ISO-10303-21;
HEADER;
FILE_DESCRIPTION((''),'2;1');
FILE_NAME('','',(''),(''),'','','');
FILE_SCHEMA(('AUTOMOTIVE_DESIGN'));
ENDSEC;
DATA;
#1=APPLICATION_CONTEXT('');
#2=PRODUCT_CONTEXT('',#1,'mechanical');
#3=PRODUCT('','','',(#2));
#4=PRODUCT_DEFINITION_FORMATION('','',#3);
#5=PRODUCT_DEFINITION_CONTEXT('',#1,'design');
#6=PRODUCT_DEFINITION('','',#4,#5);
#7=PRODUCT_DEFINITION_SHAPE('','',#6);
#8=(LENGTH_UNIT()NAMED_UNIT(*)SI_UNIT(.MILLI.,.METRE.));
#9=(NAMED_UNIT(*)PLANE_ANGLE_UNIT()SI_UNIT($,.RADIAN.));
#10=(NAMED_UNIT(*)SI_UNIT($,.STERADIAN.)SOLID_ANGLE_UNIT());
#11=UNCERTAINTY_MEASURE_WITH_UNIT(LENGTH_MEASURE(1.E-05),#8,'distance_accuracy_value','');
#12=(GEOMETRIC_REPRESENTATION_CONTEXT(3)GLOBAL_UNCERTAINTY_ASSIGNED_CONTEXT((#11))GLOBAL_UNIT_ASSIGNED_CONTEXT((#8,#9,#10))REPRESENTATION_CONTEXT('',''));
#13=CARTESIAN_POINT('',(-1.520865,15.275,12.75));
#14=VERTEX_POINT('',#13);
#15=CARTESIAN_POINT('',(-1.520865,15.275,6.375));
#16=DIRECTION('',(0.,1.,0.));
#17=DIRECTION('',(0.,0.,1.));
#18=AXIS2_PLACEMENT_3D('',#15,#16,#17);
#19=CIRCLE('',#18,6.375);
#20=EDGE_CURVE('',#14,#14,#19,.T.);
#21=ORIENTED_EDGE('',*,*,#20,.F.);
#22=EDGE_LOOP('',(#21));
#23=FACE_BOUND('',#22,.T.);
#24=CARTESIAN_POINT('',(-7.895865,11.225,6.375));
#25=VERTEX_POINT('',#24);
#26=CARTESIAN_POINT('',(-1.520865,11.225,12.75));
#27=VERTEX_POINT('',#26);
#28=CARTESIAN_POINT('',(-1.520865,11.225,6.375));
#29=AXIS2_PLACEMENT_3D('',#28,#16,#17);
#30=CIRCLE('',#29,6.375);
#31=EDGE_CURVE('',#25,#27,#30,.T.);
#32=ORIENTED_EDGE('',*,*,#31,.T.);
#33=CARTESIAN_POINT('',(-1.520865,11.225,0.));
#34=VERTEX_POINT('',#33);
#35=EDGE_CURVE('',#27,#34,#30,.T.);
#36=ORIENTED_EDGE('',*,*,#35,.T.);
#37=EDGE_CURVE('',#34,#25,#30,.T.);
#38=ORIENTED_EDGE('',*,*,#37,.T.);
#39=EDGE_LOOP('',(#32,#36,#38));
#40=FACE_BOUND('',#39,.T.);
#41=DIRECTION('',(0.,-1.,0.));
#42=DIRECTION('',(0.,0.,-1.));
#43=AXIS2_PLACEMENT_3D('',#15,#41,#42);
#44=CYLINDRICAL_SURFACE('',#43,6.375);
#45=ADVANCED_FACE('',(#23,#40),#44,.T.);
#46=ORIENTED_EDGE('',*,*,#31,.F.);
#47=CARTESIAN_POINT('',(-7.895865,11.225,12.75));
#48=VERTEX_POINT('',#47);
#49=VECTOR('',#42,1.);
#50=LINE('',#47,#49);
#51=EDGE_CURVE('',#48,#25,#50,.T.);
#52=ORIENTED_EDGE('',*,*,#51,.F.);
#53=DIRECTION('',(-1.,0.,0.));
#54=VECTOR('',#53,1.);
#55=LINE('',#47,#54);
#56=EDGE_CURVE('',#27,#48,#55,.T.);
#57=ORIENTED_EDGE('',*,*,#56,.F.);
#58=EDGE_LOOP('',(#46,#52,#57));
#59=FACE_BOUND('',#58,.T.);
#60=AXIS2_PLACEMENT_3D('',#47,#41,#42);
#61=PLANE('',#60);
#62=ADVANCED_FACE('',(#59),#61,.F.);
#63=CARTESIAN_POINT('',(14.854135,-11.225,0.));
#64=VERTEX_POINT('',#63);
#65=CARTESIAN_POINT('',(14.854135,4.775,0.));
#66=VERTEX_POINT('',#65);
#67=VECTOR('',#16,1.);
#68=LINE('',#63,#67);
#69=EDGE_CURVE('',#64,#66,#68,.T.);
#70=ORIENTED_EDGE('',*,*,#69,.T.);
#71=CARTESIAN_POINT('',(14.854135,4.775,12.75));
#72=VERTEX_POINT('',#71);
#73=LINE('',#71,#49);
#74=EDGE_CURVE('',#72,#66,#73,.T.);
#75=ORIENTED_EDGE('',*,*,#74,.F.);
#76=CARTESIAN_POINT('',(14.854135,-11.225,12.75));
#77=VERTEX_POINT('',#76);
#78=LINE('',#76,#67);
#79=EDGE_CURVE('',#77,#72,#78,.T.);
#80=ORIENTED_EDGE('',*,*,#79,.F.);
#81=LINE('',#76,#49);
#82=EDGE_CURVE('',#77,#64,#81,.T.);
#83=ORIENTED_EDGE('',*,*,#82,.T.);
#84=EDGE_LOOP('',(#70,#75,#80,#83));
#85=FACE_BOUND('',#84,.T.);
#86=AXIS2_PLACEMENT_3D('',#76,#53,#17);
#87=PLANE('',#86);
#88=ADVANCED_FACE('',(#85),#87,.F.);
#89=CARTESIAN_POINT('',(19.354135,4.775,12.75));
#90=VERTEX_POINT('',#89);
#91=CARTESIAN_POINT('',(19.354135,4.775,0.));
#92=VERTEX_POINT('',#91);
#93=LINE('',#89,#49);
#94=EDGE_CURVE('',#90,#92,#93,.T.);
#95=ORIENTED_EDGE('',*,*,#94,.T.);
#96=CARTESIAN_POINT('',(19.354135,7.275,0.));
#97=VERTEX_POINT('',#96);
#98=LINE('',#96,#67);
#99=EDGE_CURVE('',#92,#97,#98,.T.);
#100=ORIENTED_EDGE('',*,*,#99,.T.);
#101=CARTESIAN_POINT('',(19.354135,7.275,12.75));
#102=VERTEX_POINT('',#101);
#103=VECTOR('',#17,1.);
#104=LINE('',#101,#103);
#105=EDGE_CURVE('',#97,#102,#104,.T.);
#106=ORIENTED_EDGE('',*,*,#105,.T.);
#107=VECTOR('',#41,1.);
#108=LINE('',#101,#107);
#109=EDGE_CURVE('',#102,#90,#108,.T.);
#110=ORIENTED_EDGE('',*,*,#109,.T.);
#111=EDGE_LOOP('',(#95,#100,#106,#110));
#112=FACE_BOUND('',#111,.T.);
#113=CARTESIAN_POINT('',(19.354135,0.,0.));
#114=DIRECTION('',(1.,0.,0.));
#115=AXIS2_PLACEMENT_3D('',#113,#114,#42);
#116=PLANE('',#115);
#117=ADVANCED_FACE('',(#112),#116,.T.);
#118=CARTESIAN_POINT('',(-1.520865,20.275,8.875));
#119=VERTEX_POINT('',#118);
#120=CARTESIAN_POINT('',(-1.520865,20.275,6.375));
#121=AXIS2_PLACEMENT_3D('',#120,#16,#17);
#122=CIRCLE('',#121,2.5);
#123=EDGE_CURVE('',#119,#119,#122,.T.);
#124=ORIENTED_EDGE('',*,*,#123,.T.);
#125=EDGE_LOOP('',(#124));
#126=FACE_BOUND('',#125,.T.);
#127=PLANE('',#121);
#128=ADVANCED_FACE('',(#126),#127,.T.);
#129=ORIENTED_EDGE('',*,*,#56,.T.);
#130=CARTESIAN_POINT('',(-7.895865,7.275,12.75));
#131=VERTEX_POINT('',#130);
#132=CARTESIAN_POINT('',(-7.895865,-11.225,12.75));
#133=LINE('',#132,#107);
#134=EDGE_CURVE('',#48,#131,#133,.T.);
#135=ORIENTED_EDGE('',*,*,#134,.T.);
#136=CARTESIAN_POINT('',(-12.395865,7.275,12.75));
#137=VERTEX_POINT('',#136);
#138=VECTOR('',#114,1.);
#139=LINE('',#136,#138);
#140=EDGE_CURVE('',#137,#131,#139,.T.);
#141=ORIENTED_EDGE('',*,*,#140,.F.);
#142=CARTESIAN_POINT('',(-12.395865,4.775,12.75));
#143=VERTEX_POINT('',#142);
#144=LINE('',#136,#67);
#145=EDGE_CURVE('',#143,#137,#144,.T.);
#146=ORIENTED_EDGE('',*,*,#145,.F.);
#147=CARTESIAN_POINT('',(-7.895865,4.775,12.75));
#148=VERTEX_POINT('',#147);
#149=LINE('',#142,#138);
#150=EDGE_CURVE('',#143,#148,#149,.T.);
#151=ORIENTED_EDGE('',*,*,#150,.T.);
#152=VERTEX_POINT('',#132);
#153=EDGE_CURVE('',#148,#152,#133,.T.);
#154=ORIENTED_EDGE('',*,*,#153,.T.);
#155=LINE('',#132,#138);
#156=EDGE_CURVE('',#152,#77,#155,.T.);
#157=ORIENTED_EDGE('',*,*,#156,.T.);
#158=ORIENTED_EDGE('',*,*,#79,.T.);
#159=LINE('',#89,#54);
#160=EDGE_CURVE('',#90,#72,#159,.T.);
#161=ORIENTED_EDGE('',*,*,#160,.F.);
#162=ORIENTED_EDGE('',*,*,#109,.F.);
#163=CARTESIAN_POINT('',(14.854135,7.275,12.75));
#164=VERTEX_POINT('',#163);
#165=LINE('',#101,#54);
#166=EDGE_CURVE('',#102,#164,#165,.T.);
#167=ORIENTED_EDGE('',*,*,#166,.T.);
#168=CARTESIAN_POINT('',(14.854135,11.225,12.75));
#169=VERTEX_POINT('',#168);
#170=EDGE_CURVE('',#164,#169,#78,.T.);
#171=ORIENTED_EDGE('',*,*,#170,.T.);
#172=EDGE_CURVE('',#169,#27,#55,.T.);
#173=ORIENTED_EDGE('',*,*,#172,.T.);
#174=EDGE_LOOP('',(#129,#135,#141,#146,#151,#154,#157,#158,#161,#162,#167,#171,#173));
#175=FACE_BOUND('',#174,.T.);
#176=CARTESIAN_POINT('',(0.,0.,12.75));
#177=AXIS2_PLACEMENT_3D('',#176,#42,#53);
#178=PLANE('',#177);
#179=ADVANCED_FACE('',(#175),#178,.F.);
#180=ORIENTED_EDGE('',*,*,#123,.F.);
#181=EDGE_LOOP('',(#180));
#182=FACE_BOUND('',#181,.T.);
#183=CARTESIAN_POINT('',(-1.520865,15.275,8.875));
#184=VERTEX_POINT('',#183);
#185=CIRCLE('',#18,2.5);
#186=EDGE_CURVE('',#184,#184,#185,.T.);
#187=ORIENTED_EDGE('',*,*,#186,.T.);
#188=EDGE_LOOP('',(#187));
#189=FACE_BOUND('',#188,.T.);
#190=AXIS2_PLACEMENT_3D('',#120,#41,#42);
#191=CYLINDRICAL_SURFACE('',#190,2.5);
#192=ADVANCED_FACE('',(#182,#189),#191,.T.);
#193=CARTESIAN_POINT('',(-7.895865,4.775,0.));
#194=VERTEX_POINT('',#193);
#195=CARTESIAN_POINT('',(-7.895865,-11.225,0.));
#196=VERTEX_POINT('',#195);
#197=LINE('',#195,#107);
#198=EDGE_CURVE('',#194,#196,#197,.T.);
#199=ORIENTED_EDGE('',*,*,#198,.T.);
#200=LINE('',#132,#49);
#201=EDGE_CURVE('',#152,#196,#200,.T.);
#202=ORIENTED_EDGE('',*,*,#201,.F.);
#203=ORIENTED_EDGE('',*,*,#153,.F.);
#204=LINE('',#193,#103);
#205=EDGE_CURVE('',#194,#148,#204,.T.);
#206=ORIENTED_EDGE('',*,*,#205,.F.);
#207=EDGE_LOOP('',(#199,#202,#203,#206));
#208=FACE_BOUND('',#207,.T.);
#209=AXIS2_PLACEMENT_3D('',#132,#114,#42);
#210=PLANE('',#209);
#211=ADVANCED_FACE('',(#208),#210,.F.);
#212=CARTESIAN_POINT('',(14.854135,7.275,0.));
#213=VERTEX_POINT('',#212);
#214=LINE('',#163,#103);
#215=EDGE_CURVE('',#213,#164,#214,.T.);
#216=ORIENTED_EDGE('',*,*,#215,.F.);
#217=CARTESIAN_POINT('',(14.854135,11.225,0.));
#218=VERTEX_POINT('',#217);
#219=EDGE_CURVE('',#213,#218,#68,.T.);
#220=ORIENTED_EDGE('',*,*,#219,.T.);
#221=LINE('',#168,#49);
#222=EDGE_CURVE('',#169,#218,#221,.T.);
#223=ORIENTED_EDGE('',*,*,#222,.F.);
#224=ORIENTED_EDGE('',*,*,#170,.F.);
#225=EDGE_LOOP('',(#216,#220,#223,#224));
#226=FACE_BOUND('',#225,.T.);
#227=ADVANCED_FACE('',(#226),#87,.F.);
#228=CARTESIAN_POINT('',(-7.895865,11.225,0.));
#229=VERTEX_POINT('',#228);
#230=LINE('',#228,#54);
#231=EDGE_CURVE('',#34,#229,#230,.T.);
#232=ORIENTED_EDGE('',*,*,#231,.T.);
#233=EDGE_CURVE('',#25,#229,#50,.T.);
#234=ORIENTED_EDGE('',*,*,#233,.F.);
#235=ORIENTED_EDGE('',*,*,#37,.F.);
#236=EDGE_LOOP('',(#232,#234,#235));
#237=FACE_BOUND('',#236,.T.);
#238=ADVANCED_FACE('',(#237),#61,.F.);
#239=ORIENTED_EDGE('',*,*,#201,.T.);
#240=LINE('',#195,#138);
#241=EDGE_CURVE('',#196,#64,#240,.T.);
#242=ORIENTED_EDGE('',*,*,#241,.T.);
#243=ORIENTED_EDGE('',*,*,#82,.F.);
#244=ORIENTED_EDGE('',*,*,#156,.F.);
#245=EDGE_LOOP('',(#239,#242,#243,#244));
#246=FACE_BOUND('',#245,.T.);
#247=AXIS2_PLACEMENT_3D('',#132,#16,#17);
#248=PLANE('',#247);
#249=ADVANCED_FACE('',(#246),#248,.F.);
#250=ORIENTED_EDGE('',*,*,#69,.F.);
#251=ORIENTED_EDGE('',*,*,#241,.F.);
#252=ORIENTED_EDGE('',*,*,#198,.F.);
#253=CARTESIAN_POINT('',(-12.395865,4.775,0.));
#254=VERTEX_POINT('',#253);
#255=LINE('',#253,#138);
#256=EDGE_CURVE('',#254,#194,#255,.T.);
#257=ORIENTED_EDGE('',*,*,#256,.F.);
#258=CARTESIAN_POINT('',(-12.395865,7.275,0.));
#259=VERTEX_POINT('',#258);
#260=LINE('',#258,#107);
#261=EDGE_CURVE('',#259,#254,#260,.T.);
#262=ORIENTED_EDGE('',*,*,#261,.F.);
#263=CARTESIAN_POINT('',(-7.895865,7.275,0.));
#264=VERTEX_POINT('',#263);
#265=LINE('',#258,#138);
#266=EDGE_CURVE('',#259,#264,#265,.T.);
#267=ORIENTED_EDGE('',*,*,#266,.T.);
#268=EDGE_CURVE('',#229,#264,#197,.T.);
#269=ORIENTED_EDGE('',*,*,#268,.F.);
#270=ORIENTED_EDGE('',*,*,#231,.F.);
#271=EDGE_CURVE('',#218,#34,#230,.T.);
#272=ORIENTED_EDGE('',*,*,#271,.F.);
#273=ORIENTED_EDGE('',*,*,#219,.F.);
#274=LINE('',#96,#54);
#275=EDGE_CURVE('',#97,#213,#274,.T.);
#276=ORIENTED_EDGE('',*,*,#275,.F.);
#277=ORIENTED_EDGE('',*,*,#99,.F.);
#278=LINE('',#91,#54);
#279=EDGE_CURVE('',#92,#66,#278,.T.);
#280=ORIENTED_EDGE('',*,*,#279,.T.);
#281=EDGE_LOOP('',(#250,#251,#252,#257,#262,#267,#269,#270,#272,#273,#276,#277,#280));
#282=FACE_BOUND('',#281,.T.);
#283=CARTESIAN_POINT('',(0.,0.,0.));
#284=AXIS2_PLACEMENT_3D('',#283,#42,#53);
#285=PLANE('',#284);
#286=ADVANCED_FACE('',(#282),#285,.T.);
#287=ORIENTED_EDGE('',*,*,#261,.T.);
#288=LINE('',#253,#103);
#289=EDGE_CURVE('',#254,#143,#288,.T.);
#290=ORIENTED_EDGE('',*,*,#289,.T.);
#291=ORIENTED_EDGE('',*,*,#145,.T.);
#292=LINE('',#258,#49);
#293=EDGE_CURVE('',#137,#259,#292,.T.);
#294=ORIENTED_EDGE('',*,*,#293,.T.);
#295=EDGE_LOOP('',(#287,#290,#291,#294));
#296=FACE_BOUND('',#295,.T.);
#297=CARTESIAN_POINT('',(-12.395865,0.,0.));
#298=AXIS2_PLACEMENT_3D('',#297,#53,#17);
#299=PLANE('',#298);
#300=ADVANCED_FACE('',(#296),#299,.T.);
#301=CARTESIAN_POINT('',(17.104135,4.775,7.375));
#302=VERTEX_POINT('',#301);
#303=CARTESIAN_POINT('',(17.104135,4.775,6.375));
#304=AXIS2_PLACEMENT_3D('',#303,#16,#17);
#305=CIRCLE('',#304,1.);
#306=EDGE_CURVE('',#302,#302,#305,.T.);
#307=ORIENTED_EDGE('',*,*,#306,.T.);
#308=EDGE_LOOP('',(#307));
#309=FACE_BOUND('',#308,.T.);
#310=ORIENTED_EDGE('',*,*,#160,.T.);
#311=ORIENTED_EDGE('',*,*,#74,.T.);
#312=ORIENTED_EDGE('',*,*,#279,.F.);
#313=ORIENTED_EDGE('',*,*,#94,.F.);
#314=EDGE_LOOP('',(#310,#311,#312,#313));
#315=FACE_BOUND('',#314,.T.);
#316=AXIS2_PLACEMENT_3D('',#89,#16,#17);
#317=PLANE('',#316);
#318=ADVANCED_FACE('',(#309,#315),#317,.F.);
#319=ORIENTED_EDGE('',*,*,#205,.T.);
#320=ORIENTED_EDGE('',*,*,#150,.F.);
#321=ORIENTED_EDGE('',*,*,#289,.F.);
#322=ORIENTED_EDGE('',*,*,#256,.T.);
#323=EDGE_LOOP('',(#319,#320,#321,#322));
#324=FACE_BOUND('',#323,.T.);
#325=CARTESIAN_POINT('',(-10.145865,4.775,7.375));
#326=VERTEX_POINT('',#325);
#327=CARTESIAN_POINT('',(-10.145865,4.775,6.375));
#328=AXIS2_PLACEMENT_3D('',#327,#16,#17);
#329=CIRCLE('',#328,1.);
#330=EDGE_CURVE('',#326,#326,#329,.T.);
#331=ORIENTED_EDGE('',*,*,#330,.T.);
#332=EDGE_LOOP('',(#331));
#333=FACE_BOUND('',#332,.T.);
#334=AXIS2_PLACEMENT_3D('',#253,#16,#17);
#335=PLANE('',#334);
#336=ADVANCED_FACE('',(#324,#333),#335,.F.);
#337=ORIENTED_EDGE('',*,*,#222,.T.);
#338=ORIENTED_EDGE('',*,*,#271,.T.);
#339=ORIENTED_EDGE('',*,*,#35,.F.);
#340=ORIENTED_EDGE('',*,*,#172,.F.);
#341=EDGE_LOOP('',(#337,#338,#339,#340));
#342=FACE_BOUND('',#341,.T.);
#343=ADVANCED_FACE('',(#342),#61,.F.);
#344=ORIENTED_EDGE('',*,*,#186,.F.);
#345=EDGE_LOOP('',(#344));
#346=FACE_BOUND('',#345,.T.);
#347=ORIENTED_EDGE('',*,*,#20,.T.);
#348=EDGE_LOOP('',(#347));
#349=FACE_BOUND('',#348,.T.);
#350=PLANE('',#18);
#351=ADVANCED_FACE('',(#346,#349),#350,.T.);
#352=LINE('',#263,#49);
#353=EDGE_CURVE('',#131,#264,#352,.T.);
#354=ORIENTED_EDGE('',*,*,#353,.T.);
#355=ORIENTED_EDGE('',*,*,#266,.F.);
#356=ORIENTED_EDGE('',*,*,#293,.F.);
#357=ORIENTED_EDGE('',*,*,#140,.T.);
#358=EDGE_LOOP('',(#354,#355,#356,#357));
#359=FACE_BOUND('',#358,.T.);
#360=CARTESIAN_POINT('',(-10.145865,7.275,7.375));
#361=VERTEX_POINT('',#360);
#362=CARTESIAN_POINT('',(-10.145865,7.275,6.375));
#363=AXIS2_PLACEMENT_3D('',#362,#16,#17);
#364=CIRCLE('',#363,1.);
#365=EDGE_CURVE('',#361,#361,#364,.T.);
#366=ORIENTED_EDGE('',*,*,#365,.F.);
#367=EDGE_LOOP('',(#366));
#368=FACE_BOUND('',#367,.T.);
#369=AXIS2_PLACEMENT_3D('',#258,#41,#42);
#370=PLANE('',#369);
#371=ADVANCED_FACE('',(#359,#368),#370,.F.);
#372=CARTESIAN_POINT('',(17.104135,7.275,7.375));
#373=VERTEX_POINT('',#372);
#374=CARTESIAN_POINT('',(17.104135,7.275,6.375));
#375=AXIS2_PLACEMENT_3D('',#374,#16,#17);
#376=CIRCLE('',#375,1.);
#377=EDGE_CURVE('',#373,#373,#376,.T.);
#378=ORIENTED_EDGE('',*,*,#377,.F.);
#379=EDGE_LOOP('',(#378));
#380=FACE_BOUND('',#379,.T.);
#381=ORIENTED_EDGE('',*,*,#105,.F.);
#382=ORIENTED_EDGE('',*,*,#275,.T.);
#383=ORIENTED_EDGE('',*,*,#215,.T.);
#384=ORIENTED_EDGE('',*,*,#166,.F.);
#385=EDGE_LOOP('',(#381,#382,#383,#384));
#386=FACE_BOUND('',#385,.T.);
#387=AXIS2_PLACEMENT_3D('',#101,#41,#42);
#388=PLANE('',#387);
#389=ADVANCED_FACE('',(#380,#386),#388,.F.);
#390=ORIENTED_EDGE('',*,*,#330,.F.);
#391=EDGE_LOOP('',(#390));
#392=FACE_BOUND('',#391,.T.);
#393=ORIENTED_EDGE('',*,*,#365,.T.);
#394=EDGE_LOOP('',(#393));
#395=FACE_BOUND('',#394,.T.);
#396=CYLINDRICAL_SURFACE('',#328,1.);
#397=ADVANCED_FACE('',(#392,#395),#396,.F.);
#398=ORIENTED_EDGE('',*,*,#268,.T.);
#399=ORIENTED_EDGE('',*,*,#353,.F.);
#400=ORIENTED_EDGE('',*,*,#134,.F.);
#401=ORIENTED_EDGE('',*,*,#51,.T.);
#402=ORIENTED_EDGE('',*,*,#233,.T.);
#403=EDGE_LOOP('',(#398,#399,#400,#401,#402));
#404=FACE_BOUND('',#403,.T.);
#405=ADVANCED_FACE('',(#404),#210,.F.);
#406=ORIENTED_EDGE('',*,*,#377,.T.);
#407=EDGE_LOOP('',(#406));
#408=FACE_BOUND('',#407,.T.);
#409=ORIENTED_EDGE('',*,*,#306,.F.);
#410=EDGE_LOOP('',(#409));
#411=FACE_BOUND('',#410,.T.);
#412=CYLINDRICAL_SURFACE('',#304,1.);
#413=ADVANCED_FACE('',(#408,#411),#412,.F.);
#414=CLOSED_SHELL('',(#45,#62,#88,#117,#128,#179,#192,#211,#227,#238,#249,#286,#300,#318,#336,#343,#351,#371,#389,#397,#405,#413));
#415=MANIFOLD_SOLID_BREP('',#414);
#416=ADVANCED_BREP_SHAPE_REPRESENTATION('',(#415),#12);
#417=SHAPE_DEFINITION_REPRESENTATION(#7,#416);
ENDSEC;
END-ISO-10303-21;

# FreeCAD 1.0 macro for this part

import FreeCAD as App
import Part
import Sketcher

doc = App.newDocument("Part")
body = doc.addObject("PartDesign::Body", "Body")

sketch1 = body.newObject("Sketcher::SketchObject", "Sketch")
sketch1.AttachmentSupport = (doc.getObject("XY_Plane"), [""])
sketch1.MapMode = "FlatFace"
sketch1.addGeometry([
    Part.LineSegment(App.Vector(-7.895865, 11.225, 0), App.Vector(-7.895865, -11.225, 0)),
    Part.LineSegment(App.Vector(-7.895865, -11.225, 0), App.Vector(14.854135, -11.225, 0)),
    Part.LineSegment(App.Vector(14.854135, -11.225, 0), App.Vector(14.854135, 11.225, 0)),
    Part.LineSegment(App.Vector(14.854135, 11.225, 0), App.Vector(-7.895865, 11.225, 0)),
], False)
sketch1.addConstraint([
    Sketcher.Constraint("Coincident", 0, 2, 1, 1),
    Sketcher.Constraint("Coincident", 1, 2, 2, 1),
    Sketcher.Constraint("Coincident", 2, 2, 3, 1),
    Sketcher.Constraint("Coincident", 3, 2, 0, 1),
    Sketcher.Constraint("Vertical", 0),
    Sketcher.Constraint("Horizontal", 1),
    Sketcher.Constraint("Vertical", 2),
    Sketcher.Constraint("Horizontal", 3),
    Sketcher.Constraint("DistanceX", 1, 1, 1, 2, 22.75),
    Sketcher.Constraint("DistanceY", 0, 2, 0, 1, 22.45),
    Sketcher.Constraint("DistanceY", 0, 2, -1, 1, 11.225),
    Sketcher.Constraint("DistanceX", 0, 2, -1, 1, 7.895865),
])
pad1 = body.newObject("PartDesign::Pad", "Pad")
pad1.Profile = sketch1
pad1.Length = 12.75

sketch2 = body.newObject("Sketcher::SketchObject", "Sketch001")
sketch2.AttachmentSupport = (doc.getObject("YZ_Plane"), [""])
sketch2.MapMode = "FlatFace"
sketch2.AttachmentOffset = App.Placement(App.Vector(0, 0, 14.854135), App.Rotation())
sketch2.addGeometry([
    Part.LineSegment(App.Vector(7.275, 12.75, 0), App.Vector(4.775, 12.75, 0)),
    Part.LineSegment(App.Vector(4.775, 12.75, 0), App.Vector(4.775, 0, 0)),
    Part.LineSegment(App.Vector(4.775, 0, 0), App.Vector(7.275, 0, 0)),
    Part.LineSegment(App.Vector(7.275, 0, 0), App.Vector(7.275, 12.75, 0)),
], False)
sketch2.addConstraint([
    Sketcher.Constraint("Coincident", 0, 2, 1, 1),
    Sketcher.Constraint("Coincident", 1, 2, 2, 1),
    Sketcher.Constraint("Coincident", 2, 2, 3, 1),
    Sketcher.Constraint("Coincident", 3, 2, 0, 1),
    Sketcher.Constraint("Horizontal", 0),
    Sketcher.Constraint("Vertical", 1),
    Sketcher.Constraint("Horizontal", 2),
    Sketcher.Constraint("Vertical", 3),
    Sketcher.Constraint("PointOnObject", 1, 2, -1),
    Sketcher.Constraint("DistanceX", 0, 2, 0, 1, 2.5),
    Sketcher.Constraint("DistanceY", 1, 2, 1, 1, 12.75),
    Sketcher.Constraint("DistanceX", -1, 1, 0, 2, 4.775),
])
pad2 = body.newObject("PartDesign::Pad", "Pad001")
pad2.Profile = sketch2
pad2.Length = 4.5

sketch3 = body.newObject("Sketcher::SketchObject", "Sketch002")
sketch3.AttachmentSupport = (doc.getObject("YZ_Plane"), [""])
sketch3.MapMode = "FlatFace"
sketch3.AttachmentOffset = App.Placement(App.Vector(0, 0, -7.895865), App.Rotation())
sketch3.addGeometry([
    Part.LineSegment(App.Vector(7.275, 0, 0), App.Vector(4.775, 0, 0)),
    Part.LineSegment(App.Vector(4.775, 0, 0), App.Vector(4.775, 12.75, 0)),
    Part.LineSegment(App.Vector(4.775, 12.75, 0), App.Vector(7.275, 12.75, 0)),
    Part.LineSegment(App.Vector(7.275, 12.75, 0), App.Vector(7.275, 0, 0)),
], False)
sketch3.addConstraint([
    Sketcher.Constraint("Coincident", 0, 2, 1, 1),
    Sketcher.Constraint("Coincident", 1, 2, 2, 1),
    Sketcher.Constraint("Coincident", 2, 2, 3, 1),
    Sketcher.Constraint("Coincident", 3, 2, 0, 1),
    Sketcher.Constraint("Horizontal", 0),
    Sketcher.Constraint("Vertical", 1),
    Sketcher.Constraint("Horizontal", 2),
    Sketcher.Constraint("Vertical", 3),
    Sketcher.Constraint("PointOnObject", 0, 2, -1),
    Sketcher.Constraint("DistanceX", 0, 2, 0, 1, 2.5),
    Sketcher.Constraint("DistanceY", 1, 1, 1, 2, 12.75),
    Sketcher.Constraint("DistanceX", -1, 1, 0, 2, 4.775),
])
pad3 = body.newObject("PartDesign::Pad", "Pad002")
pad3.Profile = sketch3
pad3.Length = 4.5
pad3.Reversed = True

sketch4 = body.newObject("Sketcher::SketchObject", "Sketch003")
sketch4.AttachmentSupport = (doc.getObject("XZ_Plane"), [""])
sketch4.MapMode = "FlatFace"
sketch4.AttachmentOffset = App.Placement(App.Vector(0, 0, -7.275), App.Rotation())
sketch4.addGeometry(Part.Circle(App.Vector(-10.145865, 6.375, 0), App.Vector(0, 0, 1), 1), False)
sketch4.addConstraint([
    Sketcher.Constraint("Diameter", 0, 2.0),
    Sketcher.Constraint("DistanceY", -1, 1, 0, 3, 6.375),
    Sketcher.Constraint("DistanceX", 0, 3, -1, 1, 10.145865),
])
pocket1 = body.newObject("PartDesign::Pocket", "Pocket")
pocket1.Profile = sketch4
pocket1.Length = 2.5
pocket1.Reversed = True

sketch5 = body.newObject("Sketcher::SketchObject", "Sketch004")
sketch5.AttachmentSupport = (doc.getObject("XZ_Plane"), [""])
sketch5.MapMode = "FlatFace"
sketch5.AttachmentOffset = App.Placement(App.Vector(0, 0, -7.275), App.Rotation())
sketch5.addGeometry(Part.Circle(App.Vector(17.104135, 6.375, 0), App.Vector(0, 0, 1), 1), False)
sketch5.addConstraint([
    Sketcher.Constraint("Diameter", 0, 2.0),
    Sketcher.Constraint("DistanceY", -1, 1, 0, 3, 6.375),
    Sketcher.Constraint("DistanceX", -1, 1, 0, 3, 17.104135),
])
pocket2 = body.newObject("PartDesign::Pocket", "Pocket001")
pocket2.Profile = sketch5
pocket2.Length = 2.5
pocket2.Reversed = True

sketch6 = body.newObject("Sketcher::SketchObject", "Sketch005")
sketch6.AttachmentSupport = (doc.getObject("XZ_Plane"), [""])
sketch6.MapMode = "FlatFace"
sketch6.AttachmentOffset = App.Placement(App.Vector(0, 0, -11.225), App.Rotation())
sketch6.addGeometry(Part.Circle(App.Vector(-1.520865, 6.375, 0), App.Vector(0, 0, 1), 6.375), False)
sketch6.addConstraint([
    Sketcher.Constraint("Diameter", 0, 12.75),
    Sketcher.Constraint("DistanceY", -1, 1, 0, 3, 6.375),
    Sketcher.Constraint("DistanceX", 0, 3, -1, 1, 1.520865),
])
pad4 = body.newObject("PartDesign::Pad", "Pad003")
pad4.Profile = sketch6
pad4.Length = 4.05
pad4.Reversed = True

sketch7 = body.newObject("Sketcher::SketchObject", "Sketch006")
sketch7.AttachmentSupport = (doc.getObject("XZ_Plane"), [""])
sketch7.MapMode = "FlatFace"
sketch7.AttachmentOffset = App.Placement(App.Vector(0, 0, -15.275), App.Rotation())
sketch7.addGeometry(Part.Circle(App.Vector(-1.520865, 6.375, 0), App.Vector(0, 0, 1), 2.5), False)
sketch7.addConstraint([
    Sketcher.Constraint("Diameter", 0, 5.0),
    Sketcher.Constraint("DistanceY", -1, 1, 0, 3, 6.375),
    Sketcher.Constraint("DistanceX", 0, 3, -1, 1, 1.520865),
])
pad5 = body.newObject("PartDesign::Pad", "Pad004")
pad5.Profile = sketch7
pad5.Length = 5
pad5.Reversed = True

doc.recompute()
